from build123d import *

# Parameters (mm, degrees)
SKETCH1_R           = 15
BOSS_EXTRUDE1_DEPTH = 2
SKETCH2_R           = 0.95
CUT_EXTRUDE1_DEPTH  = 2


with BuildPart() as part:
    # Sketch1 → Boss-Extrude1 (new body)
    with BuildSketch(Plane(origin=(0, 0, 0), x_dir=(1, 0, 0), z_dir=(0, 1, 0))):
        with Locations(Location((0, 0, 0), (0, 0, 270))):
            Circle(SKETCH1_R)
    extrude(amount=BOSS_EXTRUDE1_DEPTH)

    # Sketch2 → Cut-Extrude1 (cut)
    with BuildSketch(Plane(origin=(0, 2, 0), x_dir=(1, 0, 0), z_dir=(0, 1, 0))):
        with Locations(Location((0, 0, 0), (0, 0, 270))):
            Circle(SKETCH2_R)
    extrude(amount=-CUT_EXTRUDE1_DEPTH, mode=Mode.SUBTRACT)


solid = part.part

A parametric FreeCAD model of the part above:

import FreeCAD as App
import Part
import Sketcher

V = App.Vector
Q = App.Units.Quantity

doc = App.newDocument("Part")
params = doc.addObject("Spreadsheet::Sheet", "Params")
for row, (alias, value) in enumerate([
    ("sketch1_diameter", "30 mm"),
    ("pad1_length", "2 mm"),
    ("sketch2_diameter", "1.9 mm"),
    ("pocket1_length", "2 mm"),
], start=1):
    params.set(f"A{row}", alias)
    params.set(f"B{row}", "=" + value)
    params.setAlias(f"B{row}", alias)

body = doc.addObject("PartDesign::Body", "Body")

# Sketch on XZ plane
sketch1 = body.newObject("Sketcher::SketchObject", "Sketch")
sketch1.AttachmentSupport = (doc.getObject("XZ_Plane"), [""])
sketch1.MapMode = "FlatFace"
sketch1.addGeometry(Part.Circle(V(0, 0, 0), V(0, 0, 1), 15), False)
sketch1.addConstraint([
    Sketcher.Constraint("Coincident", 0, 3, -1, 1),
    Sketcher.Constraint("Diameter", 0, Q("30 mm")),
])
sketch1.setExpression("Constraints[1]", "Params.sketch1_diameter")
pad1 = body.newObject("PartDesign::Pad", "Pad")
pad1.Profile = sketch1
pad1.setExpression("Length", "Params.pad1_length")
pad1.Reversed = True

# Sketch on XZ plane
sketch2 = body.newObject("Sketcher::SketchObject", "Sketch001")
sketch2.AttachmentSupport = (doc.getObject("XZ_Plane"), [""])
sketch2.MapMode = "FlatFace"
sketch2.AttachmentOffset = App.Placement(V(0, 0, -2), App.Rotation())
sketch2.addGeometry(Part.Circle(V(0, 0, 0), V(0, 0, 1), 0.9), False)
sketch2.addConstraint([
    Sketcher.Constraint("Coincident", 0, 3, -1, 1),
    Sketcher.Constraint("Diameter", 0, Q("1.9 mm")),
])
sketch2.setExpression("Constraints[1]", "Params.sketch2_diameter")
pocket1 = body.newObject("PartDesign::Pocket", "Pocket")
pocket1.Profile = sketch2
pocket1.setExpression("Length", "Params.pocket1_length")
pocket1.Reversed = True

doc.recompute()
